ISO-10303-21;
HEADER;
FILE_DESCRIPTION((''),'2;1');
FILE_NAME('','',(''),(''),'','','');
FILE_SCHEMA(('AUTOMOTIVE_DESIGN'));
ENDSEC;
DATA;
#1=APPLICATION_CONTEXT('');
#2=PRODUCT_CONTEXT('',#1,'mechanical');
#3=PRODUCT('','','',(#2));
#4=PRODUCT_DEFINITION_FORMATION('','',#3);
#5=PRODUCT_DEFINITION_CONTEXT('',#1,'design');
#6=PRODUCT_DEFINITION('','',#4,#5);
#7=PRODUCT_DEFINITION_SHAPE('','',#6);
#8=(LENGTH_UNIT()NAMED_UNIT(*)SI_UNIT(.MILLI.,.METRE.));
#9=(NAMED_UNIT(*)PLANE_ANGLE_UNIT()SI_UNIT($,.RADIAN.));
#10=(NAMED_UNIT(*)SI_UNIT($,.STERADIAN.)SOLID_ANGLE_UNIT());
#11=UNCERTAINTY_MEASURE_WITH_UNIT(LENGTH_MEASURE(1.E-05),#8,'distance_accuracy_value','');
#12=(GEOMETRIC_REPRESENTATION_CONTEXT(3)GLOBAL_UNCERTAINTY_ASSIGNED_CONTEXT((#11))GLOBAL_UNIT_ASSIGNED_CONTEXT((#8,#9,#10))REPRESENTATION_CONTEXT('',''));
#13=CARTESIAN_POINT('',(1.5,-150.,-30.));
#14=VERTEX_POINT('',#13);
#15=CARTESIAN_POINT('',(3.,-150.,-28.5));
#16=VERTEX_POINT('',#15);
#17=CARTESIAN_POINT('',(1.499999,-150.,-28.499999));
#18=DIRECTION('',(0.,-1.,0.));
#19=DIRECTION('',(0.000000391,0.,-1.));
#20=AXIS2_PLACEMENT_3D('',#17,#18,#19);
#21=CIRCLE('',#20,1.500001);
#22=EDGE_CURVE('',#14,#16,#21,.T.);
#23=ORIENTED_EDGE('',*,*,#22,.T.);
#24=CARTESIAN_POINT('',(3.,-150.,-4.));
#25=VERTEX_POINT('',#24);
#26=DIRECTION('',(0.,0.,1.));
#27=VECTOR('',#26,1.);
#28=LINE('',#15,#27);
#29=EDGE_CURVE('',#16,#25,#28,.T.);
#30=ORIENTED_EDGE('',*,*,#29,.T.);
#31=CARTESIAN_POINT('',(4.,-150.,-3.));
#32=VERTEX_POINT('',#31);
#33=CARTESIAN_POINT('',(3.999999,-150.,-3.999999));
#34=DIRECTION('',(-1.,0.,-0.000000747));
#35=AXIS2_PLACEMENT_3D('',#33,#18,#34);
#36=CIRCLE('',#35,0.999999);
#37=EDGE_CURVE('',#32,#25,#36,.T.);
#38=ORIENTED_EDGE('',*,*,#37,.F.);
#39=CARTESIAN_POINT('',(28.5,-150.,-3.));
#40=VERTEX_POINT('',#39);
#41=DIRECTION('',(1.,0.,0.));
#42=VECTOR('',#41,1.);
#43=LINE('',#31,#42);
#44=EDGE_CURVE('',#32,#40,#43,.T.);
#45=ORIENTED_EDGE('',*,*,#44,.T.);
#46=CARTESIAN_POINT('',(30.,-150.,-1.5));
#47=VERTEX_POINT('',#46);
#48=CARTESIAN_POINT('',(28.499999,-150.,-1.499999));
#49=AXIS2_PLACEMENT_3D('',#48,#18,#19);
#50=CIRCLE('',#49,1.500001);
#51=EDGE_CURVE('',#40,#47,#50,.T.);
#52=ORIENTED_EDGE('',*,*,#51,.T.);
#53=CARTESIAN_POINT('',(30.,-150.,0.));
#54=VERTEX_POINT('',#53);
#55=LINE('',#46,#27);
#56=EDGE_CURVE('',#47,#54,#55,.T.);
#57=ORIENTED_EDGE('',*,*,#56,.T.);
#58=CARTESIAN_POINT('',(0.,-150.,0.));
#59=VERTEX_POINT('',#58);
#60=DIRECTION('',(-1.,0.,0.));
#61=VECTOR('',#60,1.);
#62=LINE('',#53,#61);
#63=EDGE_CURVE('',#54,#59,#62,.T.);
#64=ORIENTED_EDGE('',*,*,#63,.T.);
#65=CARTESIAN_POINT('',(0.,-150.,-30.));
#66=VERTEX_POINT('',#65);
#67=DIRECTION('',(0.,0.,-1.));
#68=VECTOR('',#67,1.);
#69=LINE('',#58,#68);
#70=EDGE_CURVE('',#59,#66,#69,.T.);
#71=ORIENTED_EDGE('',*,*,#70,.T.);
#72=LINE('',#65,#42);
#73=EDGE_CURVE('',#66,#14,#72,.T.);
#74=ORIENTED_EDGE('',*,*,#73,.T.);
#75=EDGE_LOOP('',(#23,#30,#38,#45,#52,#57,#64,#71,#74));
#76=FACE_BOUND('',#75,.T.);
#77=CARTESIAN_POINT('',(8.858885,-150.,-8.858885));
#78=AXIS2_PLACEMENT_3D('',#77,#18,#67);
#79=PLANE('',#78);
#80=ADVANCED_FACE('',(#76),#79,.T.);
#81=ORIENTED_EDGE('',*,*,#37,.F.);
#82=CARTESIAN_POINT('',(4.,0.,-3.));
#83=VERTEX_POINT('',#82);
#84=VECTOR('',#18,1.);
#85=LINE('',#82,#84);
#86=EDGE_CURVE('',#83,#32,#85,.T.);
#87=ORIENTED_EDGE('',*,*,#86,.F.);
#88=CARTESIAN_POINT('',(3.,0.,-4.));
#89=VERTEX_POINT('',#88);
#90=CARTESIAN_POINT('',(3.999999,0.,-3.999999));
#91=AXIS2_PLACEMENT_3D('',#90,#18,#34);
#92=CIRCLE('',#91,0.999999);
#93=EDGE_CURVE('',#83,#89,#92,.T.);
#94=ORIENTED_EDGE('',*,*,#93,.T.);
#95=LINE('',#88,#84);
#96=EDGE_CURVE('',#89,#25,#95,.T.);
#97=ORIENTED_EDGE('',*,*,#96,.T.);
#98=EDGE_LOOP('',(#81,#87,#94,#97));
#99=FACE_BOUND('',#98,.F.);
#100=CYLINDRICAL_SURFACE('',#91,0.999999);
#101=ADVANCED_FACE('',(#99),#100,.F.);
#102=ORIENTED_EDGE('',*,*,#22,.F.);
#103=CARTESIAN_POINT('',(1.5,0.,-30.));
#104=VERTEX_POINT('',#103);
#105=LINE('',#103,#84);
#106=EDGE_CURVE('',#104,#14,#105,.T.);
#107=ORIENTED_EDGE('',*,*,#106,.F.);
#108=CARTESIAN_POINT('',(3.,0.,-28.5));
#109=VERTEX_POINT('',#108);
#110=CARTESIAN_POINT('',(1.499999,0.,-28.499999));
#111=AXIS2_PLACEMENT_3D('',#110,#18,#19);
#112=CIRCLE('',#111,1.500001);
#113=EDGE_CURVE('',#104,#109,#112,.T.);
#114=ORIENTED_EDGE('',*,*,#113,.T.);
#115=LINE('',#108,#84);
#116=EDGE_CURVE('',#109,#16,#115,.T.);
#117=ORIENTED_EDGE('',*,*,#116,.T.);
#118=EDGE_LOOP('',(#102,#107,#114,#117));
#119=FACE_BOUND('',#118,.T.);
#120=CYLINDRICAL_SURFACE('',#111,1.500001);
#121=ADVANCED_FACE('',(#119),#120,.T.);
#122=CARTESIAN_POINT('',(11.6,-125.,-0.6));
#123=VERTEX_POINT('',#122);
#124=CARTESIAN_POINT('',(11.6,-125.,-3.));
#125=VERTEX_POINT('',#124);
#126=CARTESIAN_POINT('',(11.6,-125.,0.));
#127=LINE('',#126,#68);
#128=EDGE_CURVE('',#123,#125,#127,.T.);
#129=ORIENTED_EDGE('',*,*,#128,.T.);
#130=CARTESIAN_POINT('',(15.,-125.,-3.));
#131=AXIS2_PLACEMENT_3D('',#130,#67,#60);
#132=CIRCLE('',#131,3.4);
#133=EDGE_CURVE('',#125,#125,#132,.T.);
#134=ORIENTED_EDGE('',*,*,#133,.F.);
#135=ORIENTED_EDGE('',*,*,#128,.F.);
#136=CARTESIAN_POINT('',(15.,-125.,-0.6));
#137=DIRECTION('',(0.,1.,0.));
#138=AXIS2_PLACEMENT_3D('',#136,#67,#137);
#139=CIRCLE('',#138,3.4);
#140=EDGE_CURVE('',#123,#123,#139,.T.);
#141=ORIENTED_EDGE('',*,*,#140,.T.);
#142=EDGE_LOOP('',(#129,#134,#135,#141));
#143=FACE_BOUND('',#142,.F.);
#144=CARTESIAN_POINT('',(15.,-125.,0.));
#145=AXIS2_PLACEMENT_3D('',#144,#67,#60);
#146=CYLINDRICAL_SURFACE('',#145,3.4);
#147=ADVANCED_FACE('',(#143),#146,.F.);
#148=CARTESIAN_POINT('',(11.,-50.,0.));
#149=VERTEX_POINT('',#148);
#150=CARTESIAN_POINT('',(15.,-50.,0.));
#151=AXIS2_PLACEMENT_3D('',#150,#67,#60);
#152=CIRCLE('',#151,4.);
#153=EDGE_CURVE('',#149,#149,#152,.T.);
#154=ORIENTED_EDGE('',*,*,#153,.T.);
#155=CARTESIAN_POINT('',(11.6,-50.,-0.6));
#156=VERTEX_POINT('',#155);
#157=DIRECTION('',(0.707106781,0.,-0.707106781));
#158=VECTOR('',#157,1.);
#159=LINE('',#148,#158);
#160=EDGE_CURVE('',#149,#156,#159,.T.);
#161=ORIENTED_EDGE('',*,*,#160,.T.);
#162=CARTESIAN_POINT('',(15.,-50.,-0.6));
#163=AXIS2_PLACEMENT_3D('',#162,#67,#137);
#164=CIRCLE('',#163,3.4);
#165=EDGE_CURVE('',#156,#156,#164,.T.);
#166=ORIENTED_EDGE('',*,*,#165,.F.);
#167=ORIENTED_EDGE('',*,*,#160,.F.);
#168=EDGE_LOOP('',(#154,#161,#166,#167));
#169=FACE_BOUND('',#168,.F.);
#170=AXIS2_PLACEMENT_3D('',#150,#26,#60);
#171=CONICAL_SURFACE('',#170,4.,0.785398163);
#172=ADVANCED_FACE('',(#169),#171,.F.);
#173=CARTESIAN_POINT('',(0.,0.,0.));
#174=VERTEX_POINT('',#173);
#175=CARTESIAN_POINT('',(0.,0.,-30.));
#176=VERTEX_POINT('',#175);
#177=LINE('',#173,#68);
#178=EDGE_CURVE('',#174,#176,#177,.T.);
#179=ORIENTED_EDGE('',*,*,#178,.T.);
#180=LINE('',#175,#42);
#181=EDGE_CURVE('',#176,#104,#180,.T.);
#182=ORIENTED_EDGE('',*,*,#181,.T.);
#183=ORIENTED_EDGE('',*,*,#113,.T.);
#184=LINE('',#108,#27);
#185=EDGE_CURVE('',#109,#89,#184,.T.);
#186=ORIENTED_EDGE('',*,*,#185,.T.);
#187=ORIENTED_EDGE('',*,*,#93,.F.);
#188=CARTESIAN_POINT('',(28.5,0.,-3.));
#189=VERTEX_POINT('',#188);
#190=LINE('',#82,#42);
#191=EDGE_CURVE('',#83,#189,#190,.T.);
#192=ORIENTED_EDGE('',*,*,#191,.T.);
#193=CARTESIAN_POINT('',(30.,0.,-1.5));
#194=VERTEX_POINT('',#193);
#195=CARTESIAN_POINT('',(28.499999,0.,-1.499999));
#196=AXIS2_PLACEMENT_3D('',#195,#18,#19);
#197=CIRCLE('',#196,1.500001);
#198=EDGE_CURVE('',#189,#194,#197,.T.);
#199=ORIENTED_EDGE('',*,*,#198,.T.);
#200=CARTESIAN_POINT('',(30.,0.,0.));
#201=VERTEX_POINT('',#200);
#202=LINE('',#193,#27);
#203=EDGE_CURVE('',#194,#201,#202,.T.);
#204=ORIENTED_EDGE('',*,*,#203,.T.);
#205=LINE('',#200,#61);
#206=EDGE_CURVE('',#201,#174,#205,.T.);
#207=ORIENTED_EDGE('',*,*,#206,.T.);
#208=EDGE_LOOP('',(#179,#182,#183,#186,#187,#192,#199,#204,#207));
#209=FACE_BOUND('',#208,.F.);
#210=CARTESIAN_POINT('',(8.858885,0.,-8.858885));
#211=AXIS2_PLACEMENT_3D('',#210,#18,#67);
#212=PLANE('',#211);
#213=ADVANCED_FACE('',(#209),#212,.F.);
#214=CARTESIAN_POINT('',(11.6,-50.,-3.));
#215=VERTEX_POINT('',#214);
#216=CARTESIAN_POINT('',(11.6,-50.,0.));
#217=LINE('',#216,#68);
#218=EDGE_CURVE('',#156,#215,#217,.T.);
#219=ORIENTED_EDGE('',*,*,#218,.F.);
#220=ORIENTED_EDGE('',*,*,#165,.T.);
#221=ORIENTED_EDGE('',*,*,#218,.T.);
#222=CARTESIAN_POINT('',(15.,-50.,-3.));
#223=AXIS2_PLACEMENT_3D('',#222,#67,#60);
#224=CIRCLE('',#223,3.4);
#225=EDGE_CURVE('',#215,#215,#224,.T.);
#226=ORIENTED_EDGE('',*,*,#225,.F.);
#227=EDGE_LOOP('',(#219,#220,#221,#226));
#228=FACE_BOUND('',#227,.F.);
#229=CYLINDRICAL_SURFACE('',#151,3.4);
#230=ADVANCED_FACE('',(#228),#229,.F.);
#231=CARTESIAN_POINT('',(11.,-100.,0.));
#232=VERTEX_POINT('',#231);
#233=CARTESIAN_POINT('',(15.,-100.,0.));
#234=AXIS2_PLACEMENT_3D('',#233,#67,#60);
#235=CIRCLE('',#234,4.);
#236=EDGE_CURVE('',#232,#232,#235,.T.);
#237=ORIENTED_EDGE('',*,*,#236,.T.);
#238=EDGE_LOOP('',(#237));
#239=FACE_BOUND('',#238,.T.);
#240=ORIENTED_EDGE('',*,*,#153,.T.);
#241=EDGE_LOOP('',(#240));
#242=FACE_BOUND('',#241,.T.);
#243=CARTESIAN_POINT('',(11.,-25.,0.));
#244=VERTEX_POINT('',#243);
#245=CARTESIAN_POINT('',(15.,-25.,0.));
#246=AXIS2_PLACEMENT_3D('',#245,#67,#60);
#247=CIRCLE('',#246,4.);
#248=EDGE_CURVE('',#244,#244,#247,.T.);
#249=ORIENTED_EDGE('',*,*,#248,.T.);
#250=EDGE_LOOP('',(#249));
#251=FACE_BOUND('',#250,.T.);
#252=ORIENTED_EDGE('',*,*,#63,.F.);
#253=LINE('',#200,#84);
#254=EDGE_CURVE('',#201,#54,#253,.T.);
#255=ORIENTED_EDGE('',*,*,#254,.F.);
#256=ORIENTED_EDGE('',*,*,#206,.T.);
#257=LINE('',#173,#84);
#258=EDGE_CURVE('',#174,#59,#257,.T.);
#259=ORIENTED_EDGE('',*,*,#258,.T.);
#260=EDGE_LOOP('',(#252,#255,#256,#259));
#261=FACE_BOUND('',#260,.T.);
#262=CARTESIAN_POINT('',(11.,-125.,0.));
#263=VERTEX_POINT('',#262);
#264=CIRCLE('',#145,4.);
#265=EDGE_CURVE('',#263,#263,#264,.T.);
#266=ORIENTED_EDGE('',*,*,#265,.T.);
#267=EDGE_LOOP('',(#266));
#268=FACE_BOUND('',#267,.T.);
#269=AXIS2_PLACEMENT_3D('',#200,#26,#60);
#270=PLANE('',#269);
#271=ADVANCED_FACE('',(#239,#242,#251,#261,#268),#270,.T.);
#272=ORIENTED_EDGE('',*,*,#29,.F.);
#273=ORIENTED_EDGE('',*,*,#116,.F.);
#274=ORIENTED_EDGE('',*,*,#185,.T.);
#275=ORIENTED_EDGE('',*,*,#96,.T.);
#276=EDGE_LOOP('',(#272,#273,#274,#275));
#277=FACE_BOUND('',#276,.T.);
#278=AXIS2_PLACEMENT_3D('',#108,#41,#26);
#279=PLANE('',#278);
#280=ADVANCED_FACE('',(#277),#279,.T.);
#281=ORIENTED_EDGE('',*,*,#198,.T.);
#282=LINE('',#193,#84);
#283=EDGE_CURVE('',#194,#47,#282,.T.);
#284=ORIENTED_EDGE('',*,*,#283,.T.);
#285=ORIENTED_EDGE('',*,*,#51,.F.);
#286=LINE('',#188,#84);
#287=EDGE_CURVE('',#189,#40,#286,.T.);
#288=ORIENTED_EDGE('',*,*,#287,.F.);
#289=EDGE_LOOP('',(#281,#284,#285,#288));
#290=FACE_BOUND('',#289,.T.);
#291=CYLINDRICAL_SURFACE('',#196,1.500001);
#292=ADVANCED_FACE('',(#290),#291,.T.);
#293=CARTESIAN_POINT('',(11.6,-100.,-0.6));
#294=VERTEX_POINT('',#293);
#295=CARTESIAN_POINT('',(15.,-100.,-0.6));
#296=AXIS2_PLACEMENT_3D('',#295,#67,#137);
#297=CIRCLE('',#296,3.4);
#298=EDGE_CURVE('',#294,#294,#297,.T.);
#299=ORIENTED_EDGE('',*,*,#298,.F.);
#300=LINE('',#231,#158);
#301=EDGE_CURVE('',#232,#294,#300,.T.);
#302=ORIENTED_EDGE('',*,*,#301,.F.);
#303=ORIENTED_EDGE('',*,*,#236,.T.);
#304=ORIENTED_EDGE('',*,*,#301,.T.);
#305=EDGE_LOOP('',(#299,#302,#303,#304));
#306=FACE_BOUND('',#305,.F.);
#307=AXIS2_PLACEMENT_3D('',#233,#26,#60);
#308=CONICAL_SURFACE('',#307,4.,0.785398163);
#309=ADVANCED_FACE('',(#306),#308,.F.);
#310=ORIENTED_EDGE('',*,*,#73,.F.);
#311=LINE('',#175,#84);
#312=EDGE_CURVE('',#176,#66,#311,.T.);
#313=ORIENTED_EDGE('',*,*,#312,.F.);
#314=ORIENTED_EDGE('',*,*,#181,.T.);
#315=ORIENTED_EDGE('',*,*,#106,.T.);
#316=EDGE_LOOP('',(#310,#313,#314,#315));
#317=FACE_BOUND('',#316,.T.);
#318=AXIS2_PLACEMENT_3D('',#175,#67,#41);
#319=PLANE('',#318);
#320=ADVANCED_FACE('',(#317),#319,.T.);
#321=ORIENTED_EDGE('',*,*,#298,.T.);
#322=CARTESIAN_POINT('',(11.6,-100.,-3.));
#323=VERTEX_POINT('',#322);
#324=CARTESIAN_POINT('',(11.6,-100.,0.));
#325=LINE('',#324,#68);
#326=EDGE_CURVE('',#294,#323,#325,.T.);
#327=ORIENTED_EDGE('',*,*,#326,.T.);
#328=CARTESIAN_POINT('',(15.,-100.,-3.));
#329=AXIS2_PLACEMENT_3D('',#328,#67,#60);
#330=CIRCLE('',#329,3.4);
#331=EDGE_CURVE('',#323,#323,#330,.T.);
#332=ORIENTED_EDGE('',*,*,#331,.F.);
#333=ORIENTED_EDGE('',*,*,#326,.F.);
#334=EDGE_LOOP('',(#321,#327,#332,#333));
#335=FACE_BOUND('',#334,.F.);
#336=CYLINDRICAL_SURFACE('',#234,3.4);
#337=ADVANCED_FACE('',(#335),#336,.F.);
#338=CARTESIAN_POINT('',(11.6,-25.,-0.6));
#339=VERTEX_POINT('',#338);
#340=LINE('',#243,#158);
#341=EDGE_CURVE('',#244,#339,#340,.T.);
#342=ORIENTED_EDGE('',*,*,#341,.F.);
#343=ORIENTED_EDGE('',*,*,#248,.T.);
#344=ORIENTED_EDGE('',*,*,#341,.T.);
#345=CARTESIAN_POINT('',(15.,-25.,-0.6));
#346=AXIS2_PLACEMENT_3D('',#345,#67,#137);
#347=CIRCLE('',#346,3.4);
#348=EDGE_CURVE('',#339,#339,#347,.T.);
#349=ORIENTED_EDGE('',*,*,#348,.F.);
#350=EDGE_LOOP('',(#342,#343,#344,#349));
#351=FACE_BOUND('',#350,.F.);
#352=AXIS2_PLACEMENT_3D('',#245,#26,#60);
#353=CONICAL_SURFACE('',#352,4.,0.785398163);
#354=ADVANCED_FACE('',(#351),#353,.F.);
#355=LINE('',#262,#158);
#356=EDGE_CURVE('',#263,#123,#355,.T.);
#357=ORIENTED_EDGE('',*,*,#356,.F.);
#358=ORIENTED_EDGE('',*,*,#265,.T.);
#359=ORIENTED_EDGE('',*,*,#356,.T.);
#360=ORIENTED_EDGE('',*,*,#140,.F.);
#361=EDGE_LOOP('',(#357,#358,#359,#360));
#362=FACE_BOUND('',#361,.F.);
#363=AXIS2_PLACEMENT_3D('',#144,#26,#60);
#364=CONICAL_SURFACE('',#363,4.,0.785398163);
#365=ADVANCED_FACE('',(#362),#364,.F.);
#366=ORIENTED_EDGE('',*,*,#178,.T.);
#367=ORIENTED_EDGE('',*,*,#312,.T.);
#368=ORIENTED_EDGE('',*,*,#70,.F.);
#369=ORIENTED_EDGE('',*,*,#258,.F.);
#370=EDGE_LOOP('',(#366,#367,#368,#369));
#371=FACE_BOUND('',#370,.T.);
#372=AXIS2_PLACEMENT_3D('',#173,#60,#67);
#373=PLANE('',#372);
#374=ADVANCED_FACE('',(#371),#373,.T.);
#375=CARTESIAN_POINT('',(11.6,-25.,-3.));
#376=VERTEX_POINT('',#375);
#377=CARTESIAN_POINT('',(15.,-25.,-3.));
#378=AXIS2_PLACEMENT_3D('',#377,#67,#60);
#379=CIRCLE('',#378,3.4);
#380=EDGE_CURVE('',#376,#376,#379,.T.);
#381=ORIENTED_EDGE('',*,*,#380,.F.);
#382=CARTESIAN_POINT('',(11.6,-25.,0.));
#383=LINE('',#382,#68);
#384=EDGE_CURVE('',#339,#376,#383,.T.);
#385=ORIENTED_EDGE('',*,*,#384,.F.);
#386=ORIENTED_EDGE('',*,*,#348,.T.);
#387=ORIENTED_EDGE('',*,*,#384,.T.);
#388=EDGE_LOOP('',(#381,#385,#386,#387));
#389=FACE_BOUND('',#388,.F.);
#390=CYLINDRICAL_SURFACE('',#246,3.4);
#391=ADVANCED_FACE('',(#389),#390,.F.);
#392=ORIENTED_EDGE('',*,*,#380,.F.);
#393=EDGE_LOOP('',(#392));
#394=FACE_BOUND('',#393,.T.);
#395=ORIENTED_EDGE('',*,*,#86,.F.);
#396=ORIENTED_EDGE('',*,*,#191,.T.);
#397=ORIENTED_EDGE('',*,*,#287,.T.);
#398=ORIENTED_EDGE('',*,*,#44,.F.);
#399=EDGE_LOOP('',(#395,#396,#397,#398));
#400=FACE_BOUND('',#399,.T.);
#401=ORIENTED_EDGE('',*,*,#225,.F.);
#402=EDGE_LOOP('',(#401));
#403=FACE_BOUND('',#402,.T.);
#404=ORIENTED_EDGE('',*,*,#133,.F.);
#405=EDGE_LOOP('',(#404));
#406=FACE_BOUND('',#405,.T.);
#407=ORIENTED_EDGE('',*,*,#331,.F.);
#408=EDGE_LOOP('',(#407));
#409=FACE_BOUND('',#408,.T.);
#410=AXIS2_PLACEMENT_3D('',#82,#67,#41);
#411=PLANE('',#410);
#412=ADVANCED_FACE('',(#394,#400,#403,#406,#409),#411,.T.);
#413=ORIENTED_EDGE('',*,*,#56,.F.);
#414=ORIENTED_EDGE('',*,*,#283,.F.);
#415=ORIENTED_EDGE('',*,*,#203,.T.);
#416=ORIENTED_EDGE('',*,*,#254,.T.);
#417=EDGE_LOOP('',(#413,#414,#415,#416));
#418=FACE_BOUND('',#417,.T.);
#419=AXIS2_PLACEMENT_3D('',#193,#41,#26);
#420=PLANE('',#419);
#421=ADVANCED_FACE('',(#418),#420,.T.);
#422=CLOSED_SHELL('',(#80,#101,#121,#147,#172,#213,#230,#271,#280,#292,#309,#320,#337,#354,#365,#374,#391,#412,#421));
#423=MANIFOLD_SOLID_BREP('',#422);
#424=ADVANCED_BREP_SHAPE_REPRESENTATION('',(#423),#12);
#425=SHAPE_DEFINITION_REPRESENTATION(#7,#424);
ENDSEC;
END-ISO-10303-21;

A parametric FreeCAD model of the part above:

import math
import FreeCAD as App
import Part
import Sketcher
from FreeCAD import Vector
Q = App.Units.Quantity

doc = App.newDocument("Part")
body = doc.addObject("PartDesign::Body", "Body")

sketch1 = body.newObject("Sketcher::SketchObject", "Sketch")
sketch1.AttachmentSupport = (doc.getObject("XZ_Plane"), [""])
sketch1.MapMode = "FlatFace"
sketch1.addGeometry(Part.LineSegment(Vector(30, 0, 0), Vector(0, 0, 0)), False)
sketch1.addGeometry(Part.LineSegment(Vector(0, 0, 0), Vector(0, -30, 0)), False)
sketch1.addGeometry(Part.LineSegment(Vector(0, -30, 0), Vector(1.5, -30, 0)), False)
sketch1.addGeometry(Part.ArcOfCircle(Part.Circle(Vector(1.499999, -28.499999, 0), Vector(0, 0, 1), 1.500001), math.radians(-89.999978), math.radians(-0.000022)), False)
sketch1.addGeometry(Part.LineSegment(Vector(3, -28.5, 0), Vector(3, -4, 0)), False)
sketch1.addGeometry(Part.ArcOfCircle(Part.Circle(Vector(3.999999, -3.999999, 0), Vector(0, 0, 1), 0.999999), math.radians(89.999957), math.radians(180.000043)), False)
sketch1.addGeometry(Part.LineSegment(Vector(4, -3, 0), Vector(28.5, -3, 0)), False)
sketch1.addGeometry(Part.ArcOfCircle(Part.Circle(Vector(28.499999, -1.499999, 0), Vector(0, 0, 1), 1.500001), math.radians(-89.999978), math.radians(-0.000022)), False)
sketch1.addGeometry(Part.LineSegment(Vector(30, -1.5, 0), Vector(30, 0, 0)), False)
sketch1.addConstraint(Sketcher.Constraint("Coincident", 0, 2, 1, 1))
sketch1.addConstraint(Sketcher.Constraint("Coincident", 1, 2, 2, 1))
sketch1.addConstraint(Sketcher.Constraint("Tangent", 2, 2, 3, 1))
sketch1.addConstraint(Sketcher.Constraint("Tangent", 3, 2, 4, 1))
sketch1.addConstraint(Sketcher.Constraint("Tangent", 4, 2, 5, 2))
sketch1.addConstraint(Sketcher.Constraint("Tangent", 5, 1, 6, 1))
sketch1.addConstraint(Sketcher.Constraint("Tangent", 6, 2, 7, 1))
sketch1.addConstraint(Sketcher.Constraint("Tangent", 7, 2, 8, 1))
sketch1.addConstraint(Sketcher.Constraint("Coincident", 8, 2, 0, 1))
sketch1.addConstraint(Sketcher.Constraint("Horizontal", 0))
sketch1.addConstraint(Sketcher.Constraint("Vertical", 1))
sketch1.addConstraint(Sketcher.Constraint("Horizontal", 2))
sketch1.addConstraint(Sketcher.Constraint("Vertical", 4))
sketch1.addConstraint(Sketcher.Constraint("Horizontal", 6))
sketch1.addConstraint(Sketcher.Constraint("Vertical", 8))
sketch1.addConstraint(Sketcher.Constraint("Coincident", 0, 2, -1, 1))
sketch1.addConstraint(Sketcher.Constraint("Equal", 3, 7))
sketch1.addConstraint(Sketcher.Constraint("Equal", 0, 1))
sketch1.addConstraint(Sketcher.Constraint("Equal", 6, 4))
sketch1.addConstraint(Sketcher.Constraint("Radius", 5, Q("0.999999 mm")))
sketch1.addConstraint(Sketcher.Constraint("Radius", 3, Q("1.500001 mm")))
sketch1.addConstraint(Sketcher.Constraint("DistanceX", 0, 2, 0, 1, Q("30 mm")))
sketch1.addConstraint(Sketcher.Constraint("DistanceX", 2, 1, 2, 2, Q("1.5 mm")))

sketch2 = body.newObject("Sketcher::SketchObject", "Sketch001")
sketch2.AttachmentSupport = (doc.getObject("XY_Plane"), [""])
sketch2.MapMode = "FlatFace"
sketch2.addGeometry(Part.LineSegment(Vector(0, 0, 0), Vector(0, -150, 0)), False)
sketch2.addConstraint(Sketcher.Constraint("Vertical", 0))
sketch2.addConstraint(Sketcher.Constraint("Coincident", 0, 1, -1, 1))
sketch2.addConstraint(Sketcher.Constraint("DistanceY", 0, 2, 0, 1, Q("150 mm")))
doc.recompute()

additivepipe = body.newObject("PartDesign::AdditivePipe", "AdditivePipe")
additivepipe.Profile = sketch1
additivepipe.Spine = (sketch2, ["Edge1"])

sketch3 = body.newObject("Sketcher::SketchObject", "Sketch002")
sketch3.AttachmentSupport = (doc.getObject("XY_Plane"), [""])
sketch3.MapMode = "FlatFace"
sketch3.addGeometry(Part.Circle(Vector(15, -125, 0), Vector(0, 0, 1), 3.4), False)
sketch3.addGeometry(Part.Circle(Vector(15, -25, 0), Vector(0, 0, 1), 3.4), False)
sketch3.addGeometry(Part.Circle(Vector(15, -100, 0), Vector(0, 0, 1), 3.4), False)
sketch3.addGeometry(Part.Circle(Vector(15, -50, 0), Vector(0, 0, 1), 3.4), False)
sketch3.addConstraint(Sketcher.Constraint("Equal", 0, 1))
sketch3.addConstraint(Sketcher.Constraint("Equal", 1, 2))
sketch3.addConstraint(Sketcher.Constraint("Equal", 2, 3))
sketch3.addConstraint(Sketcher.Constraint("Vertical", 0, 3, 1, 3))
sketch3.addConstraint(Sketcher.Constraint("Vertical", 1, 3, 2, 3))
sketch3.addConstraint(Sketcher.Constraint("Vertical", 2, 3, 3, 3))
sketch3.addConstraint(Sketcher.Constraint("Diameter", 0, Q("6.8 mm")))
sketch3.addConstraint(Sketcher.Constraint("DistanceX", -1, 1, 0, 3, Q("15 mm")))
sketch3.addConstraint(Sketcher.Constraint("DistanceY", 0, 3, -1, 1, Q("125 mm")))
sketch3.addConstraint(Sketcher.Constraint("DistanceY", 1, 3, -1, 1, Q("25 mm")))
sketch3.addConstraint(Sketcher.Constraint("DistanceY", 2, 3, -1, 1, Q("100 mm")))
sketch3.addConstraint(Sketcher.Constraint("DistanceY", 3, 3, -1, 1, Q("50 mm")))
doc.recompute()
hole = body.newObject("PartDesign::Hole", "Hole")
hole.Profile = sketch3
hole.ThreadType = "None"
hole.Diameter = 6.8
hole.DepthType = "Dimension"
hole.Depth = 5
hole.DrillPoint = "Flat"
hole.HoleCutType = "Countersink"
hole.HoleCutDiameter = 8
hole.HoleCutCountersinkAngle = 90

doc.recompute()
